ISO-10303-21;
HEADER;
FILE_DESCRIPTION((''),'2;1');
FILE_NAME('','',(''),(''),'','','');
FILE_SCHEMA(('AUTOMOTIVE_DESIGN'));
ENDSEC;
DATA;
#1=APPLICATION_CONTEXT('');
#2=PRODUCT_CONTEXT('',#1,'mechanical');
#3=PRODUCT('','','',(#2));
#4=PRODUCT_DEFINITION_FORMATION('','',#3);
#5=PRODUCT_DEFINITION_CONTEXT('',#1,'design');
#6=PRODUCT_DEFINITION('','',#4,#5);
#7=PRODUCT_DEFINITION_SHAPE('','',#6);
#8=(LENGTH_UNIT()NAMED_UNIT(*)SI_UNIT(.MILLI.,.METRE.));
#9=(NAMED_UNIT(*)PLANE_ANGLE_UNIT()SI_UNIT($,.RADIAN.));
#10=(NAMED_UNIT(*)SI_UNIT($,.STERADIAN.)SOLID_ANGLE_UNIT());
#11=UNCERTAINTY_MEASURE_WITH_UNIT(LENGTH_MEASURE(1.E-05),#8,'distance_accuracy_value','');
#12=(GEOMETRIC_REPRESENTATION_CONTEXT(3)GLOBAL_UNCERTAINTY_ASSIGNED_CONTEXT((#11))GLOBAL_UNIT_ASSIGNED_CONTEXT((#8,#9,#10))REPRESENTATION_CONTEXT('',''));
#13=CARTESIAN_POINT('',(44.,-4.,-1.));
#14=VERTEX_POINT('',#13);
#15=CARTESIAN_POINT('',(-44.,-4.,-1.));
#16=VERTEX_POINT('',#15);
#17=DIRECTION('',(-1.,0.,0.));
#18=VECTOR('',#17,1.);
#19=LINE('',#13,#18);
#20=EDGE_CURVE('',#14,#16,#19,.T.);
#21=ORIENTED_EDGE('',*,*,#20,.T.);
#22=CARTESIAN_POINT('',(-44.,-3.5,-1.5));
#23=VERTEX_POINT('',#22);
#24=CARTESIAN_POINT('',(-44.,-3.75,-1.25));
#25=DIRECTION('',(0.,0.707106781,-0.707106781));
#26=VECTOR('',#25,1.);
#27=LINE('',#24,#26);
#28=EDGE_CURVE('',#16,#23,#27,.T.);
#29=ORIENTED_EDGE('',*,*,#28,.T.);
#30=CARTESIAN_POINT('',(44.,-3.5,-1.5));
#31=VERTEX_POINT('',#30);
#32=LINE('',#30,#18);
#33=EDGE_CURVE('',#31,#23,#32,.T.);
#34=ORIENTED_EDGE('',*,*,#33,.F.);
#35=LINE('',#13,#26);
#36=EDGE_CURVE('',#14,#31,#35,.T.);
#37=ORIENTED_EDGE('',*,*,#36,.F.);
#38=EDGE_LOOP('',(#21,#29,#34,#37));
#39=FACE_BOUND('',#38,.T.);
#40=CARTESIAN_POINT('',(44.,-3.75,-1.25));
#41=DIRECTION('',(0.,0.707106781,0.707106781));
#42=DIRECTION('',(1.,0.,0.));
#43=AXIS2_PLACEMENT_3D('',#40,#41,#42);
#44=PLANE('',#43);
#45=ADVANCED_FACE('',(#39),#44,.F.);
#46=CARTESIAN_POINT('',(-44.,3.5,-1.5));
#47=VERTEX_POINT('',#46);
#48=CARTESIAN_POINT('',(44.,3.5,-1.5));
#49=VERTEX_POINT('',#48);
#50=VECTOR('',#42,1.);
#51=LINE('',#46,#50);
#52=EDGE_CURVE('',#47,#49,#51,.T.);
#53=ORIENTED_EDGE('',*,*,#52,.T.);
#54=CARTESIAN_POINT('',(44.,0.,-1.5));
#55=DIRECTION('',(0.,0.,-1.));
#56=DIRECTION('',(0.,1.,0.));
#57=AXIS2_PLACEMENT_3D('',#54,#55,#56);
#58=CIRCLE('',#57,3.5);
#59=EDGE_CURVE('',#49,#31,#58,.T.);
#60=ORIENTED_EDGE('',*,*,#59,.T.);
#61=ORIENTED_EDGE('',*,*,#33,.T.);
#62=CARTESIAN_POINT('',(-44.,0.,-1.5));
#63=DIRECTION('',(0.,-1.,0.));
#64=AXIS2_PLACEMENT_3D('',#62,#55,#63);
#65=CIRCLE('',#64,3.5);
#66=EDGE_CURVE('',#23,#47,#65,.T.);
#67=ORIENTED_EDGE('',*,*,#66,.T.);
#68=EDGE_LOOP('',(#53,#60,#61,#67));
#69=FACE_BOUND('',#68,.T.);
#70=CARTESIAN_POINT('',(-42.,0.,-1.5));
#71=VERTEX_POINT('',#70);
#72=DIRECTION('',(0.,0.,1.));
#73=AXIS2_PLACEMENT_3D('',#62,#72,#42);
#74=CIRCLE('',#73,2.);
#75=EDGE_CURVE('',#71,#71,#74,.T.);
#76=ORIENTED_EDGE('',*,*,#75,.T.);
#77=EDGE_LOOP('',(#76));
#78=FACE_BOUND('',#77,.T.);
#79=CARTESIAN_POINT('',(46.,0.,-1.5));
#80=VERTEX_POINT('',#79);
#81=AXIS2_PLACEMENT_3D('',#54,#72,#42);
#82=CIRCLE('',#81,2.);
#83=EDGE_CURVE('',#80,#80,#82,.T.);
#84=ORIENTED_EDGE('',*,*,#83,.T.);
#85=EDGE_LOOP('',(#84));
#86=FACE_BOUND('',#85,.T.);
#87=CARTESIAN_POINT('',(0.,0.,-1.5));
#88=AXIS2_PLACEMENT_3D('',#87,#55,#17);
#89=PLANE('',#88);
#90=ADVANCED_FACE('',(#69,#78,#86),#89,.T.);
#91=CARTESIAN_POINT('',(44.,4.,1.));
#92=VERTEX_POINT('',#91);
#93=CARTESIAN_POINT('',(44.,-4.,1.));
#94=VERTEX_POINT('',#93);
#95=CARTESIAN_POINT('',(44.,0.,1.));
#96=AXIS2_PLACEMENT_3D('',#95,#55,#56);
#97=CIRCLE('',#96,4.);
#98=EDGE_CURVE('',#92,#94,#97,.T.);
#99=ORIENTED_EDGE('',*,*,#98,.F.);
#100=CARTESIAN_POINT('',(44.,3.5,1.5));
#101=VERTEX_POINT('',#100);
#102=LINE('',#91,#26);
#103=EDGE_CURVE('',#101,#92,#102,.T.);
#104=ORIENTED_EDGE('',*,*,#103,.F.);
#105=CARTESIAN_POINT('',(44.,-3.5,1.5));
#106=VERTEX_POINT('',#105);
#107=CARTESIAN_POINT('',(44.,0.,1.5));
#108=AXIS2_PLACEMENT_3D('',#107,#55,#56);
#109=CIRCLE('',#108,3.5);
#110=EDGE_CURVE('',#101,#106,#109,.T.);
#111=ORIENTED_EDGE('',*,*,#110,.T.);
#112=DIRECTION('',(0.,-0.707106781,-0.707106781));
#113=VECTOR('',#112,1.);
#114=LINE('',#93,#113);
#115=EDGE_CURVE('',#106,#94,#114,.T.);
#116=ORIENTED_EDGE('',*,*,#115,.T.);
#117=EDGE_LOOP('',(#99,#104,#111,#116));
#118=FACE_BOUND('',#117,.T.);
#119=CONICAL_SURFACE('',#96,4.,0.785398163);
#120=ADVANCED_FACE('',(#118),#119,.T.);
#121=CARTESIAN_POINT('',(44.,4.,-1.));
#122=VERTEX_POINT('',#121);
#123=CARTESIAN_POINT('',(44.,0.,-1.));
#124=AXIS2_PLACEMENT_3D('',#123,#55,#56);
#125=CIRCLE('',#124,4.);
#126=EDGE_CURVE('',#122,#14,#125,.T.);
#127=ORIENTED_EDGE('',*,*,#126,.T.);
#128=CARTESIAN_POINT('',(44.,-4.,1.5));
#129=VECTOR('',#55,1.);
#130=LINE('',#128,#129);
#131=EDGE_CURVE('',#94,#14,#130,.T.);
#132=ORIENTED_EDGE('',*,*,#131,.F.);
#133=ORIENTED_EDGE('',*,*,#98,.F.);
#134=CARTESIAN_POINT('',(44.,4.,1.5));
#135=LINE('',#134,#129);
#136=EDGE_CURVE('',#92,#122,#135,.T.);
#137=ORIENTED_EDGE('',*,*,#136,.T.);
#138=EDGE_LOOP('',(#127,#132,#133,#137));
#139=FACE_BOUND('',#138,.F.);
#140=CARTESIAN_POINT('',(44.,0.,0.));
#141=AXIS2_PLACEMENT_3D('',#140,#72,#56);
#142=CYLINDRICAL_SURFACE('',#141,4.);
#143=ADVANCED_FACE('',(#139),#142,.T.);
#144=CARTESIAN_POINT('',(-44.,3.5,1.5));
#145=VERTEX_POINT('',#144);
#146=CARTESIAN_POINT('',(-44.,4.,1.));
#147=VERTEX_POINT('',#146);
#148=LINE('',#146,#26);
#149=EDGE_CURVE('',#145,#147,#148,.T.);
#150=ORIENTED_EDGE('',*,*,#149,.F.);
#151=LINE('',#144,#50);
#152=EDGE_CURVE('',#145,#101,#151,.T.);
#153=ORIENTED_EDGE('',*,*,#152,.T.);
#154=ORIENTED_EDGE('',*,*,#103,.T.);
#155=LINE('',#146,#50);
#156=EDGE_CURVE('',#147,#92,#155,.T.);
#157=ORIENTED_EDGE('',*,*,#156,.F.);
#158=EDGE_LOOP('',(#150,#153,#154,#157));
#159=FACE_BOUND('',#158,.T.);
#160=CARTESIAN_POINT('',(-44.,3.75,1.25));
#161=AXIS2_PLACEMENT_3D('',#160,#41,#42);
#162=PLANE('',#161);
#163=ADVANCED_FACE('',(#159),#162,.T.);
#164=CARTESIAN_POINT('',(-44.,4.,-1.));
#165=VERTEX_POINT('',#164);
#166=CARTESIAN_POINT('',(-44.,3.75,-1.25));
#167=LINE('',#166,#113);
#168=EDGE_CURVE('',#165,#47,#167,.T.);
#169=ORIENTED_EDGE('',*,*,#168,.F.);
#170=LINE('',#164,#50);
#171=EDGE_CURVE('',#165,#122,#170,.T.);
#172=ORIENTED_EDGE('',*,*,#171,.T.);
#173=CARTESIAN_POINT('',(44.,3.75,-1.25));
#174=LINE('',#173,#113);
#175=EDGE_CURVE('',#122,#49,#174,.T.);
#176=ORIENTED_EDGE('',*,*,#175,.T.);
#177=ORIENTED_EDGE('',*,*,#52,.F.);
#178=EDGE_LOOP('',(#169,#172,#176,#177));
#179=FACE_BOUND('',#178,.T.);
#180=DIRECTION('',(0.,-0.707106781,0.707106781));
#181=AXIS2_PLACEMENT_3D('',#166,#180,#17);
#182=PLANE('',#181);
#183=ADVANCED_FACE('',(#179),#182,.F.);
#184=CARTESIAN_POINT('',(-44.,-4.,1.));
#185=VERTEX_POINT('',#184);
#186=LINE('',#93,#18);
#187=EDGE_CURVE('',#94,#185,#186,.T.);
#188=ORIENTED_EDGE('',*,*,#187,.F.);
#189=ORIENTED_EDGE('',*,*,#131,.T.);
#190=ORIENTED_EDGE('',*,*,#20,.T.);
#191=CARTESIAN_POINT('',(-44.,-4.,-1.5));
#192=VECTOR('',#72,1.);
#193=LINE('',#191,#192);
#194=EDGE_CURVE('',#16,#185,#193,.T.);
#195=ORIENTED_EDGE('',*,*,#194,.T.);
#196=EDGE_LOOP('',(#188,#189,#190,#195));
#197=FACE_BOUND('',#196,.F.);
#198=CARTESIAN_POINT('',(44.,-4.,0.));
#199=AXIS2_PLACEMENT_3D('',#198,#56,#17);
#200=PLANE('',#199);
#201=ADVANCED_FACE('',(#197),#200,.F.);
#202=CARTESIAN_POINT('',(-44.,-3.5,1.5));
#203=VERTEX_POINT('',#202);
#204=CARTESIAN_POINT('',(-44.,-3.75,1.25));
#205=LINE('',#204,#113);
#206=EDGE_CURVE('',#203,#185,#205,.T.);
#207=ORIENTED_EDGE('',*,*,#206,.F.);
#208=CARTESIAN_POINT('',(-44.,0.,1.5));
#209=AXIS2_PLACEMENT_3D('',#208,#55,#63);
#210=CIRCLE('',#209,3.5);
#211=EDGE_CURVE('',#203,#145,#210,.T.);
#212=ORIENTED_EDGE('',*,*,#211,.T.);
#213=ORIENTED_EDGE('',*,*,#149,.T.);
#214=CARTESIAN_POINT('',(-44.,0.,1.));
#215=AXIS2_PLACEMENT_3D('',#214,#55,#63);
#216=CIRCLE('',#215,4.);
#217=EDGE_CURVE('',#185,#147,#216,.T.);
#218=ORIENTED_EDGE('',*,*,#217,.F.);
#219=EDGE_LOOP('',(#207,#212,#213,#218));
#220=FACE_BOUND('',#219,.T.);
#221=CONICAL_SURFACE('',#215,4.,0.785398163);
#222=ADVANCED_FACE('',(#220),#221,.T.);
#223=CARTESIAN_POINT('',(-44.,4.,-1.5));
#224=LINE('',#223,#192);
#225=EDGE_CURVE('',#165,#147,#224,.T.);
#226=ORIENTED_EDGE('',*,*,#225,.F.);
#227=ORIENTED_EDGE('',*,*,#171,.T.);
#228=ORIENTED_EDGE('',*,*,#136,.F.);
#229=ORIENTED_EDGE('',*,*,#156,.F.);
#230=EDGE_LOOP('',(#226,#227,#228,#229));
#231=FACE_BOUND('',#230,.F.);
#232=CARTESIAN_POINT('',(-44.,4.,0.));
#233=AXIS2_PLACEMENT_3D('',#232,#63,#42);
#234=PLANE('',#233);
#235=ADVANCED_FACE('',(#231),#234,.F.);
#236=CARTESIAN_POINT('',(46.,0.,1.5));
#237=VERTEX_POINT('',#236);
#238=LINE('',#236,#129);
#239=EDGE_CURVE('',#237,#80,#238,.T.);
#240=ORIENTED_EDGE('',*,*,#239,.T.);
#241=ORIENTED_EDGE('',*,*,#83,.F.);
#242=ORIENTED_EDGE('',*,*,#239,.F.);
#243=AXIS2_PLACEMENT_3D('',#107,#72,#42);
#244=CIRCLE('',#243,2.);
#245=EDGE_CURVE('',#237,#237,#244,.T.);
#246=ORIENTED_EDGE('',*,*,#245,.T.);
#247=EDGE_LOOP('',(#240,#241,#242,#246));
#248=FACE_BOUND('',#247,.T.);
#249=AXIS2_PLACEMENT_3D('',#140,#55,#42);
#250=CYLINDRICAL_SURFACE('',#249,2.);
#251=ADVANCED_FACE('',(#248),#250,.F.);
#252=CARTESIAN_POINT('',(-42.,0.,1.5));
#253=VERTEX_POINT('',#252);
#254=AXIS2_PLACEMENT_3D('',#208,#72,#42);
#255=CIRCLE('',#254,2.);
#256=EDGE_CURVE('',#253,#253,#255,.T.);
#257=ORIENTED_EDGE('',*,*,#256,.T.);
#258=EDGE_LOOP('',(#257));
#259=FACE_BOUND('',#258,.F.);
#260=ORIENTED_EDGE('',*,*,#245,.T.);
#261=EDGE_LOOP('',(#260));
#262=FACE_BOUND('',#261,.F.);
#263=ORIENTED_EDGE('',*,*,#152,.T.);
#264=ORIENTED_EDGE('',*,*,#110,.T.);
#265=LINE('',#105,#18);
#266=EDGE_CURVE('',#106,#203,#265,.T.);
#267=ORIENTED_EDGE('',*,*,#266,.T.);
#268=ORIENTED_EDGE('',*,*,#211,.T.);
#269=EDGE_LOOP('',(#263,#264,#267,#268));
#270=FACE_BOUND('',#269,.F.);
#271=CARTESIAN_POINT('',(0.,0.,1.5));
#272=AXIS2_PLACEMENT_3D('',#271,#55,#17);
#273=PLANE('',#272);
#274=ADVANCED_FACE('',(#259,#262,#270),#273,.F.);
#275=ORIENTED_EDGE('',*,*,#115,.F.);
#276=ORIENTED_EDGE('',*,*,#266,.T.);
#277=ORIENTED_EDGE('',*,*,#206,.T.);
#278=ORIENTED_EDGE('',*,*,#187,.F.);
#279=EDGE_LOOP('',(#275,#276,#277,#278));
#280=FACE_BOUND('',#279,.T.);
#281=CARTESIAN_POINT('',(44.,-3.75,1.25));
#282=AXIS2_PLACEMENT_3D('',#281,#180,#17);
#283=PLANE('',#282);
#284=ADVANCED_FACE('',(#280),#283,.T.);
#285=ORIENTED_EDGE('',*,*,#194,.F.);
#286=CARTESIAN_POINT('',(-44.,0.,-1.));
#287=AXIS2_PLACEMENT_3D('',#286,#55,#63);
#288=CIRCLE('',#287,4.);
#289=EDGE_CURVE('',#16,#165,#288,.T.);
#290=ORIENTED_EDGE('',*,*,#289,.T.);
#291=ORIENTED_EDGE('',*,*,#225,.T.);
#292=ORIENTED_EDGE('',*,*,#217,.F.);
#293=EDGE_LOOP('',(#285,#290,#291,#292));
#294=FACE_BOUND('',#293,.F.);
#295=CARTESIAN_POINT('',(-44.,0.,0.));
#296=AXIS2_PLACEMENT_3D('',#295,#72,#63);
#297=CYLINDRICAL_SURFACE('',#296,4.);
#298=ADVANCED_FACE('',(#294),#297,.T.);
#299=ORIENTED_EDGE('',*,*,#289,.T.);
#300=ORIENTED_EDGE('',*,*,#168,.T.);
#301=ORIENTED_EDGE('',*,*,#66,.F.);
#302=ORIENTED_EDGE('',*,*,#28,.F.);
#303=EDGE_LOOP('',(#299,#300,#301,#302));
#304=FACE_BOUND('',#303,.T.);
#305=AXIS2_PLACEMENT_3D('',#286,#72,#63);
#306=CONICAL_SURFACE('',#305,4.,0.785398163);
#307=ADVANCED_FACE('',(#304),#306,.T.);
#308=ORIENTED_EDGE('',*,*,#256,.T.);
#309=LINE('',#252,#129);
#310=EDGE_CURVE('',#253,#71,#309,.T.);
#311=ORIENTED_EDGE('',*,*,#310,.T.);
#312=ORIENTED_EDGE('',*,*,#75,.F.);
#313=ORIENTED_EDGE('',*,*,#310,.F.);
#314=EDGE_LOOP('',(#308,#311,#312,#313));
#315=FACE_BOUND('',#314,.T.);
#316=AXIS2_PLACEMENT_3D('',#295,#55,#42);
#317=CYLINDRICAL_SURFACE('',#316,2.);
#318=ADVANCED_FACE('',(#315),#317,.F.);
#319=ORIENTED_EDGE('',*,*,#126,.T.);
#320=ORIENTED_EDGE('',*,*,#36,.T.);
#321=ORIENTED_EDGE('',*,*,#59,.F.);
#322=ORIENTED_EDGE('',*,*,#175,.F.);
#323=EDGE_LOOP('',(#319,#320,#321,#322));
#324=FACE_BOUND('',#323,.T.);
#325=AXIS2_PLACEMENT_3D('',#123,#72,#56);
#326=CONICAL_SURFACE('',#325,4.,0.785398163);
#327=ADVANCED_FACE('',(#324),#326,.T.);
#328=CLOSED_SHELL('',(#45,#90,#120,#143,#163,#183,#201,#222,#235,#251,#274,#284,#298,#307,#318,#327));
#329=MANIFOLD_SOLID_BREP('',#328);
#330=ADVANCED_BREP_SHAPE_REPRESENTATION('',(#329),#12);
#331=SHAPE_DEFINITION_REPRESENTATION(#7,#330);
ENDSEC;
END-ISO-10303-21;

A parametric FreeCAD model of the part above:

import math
import FreeCAD as App
import Part
import Sketcher
from FreeCAD import Vector


def edges_at(feature, points):
    """Names of the edges that pass closest to the given points."""
    edges = feature.Shape.Edges
    near = lambda p: min(range(len(edges)), key=lambda i: edges[i].distToShape(Part.Vertex(*p))[0])
    return sorted({f"Edge{near(p) + 1}" for p in points})

doc = App.newDocument("Part")
body = doc.addObject("PartDesign::Body", "Body")

# Sketch on XY plane
sketch1 = body.newObject("Sketcher::SketchObject", "Sketch")
sketch1.AttachmentSupport = (doc.getObject("XY_Plane"), [""])
sketch1.MapMode = "FlatFace"
sketch1.addGeometry([
    Part.LineSegment(Vector(44, 4, 0), Vector(-44, 4, 0)),  # 0
    Part.ArcOfCircle(Part.Circle(Vector(-44, 0, 0), Vector(0, 0, 1), 4), math.radians(90), math.radians(270)),  # 1
    Part.LineSegment(Vector(-44, -4, 0), Vector(44, -4, 0)),  # 2
    Part.ArcOfCircle(Part.Circle(Vector(44, 0, 0), Vector(0, 0, 1), 4), math.radians(-90), math.radians(90)),  # 3
    Part.Circle(Vector(44, 0, 0), Vector(0, 0, 1), 2),  # 4
    Part.Circle(Vector(-44, 0, 0), Vector(0, 0, 1), 2),  # 5
], False)
sketch1.addConstraint([
    Sketcher.Constraint("Tangent", 0, 2, 1, 1),
    Sketcher.Constraint("Tangent", 1, 2, 2, 1),
    Sketcher.Constraint("Tangent", 2, 2, 3, 1),
    Sketcher.Constraint("Tangent", 3, 2, 0, 1),
    Sketcher.Constraint("Horizontal", 0),
    Sketcher.Constraint("Horizontal", 2),
    Sketcher.Constraint("Coincident", 4, 3, 3, 3),
    Sketcher.Constraint("Coincident", 5, 3, 1, 3),
    Sketcher.Constraint("Equal", 4, 5),
    Sketcher.Constraint("Symmetric", 1, 3, 3, 3, -1, 1),
    Sketcher.Constraint("Diameter", 4, 4.0),
    Sketcher.Constraint("Radius", 1, 4.0),
    Sketcher.Constraint("DistanceX", 0, 2, 0, 1, 88.0),
])
pad1 = body.newObject("PartDesign::Pad", "Pad")
pad1.Profile = sketch1
pad1.Length = 3
pad1.Midplane = True
doc.recompute()

chamfer = body.newObject("PartDesign::Chamfer", "Chamfer")
chamfer.Base = (pad1, edges_at(pad1, [
    (48, 0, 1.5),
    (0, 4, 1.5),
    (-48, 0, 1.5),
    (0, 4, -1.5),
    (48, 0, -1.5),
    (0, -4, -1.5),
    (-48, 0, -1.5),
    (0, -4, 1.5),
]))
chamfer.Size = 0.5

doc.recompute()
